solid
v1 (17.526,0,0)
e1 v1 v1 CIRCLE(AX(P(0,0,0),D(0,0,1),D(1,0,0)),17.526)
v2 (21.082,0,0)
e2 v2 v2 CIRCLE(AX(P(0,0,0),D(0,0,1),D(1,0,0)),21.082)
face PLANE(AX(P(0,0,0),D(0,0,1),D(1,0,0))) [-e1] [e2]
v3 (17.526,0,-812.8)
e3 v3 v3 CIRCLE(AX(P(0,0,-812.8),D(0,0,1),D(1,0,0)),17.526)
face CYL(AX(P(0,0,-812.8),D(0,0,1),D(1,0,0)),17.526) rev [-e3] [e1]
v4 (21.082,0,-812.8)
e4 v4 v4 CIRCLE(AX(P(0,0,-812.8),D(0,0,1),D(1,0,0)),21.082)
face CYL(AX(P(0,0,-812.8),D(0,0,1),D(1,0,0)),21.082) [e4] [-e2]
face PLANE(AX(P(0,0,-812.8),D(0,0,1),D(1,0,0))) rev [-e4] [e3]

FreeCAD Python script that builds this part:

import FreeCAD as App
import Part
import Sketcher
from FreeCAD import Vector
Q = App.Units.Quantity

doc = App.newDocument("Part")
body = doc.addObject("PartDesign::Body", "Body")

# Sketch on XY plane
sketch1 = doc.addObject("Sketcher::SketchObject", "Sketch")
body.addObject(sketch1)
sketch1.AttachmentSupport = (doc.XY_Plane, [""])
sketch1.MapMode = "FlatFace"
sketch1.addGeometry([
    Part.Circle(Vector(0, 0, 0), Vector(0, 0, 1), 21.082),
    Part.Circle(Vector(0, 0, 0), Vector(0, 0, 1), 17.526),
], False)
sketch1.addConstraint([
    Sketcher.Constraint("Coincident", 0, 3, -1, 1),
    Sketcher.Constraint("Coincident", 1, 3, -1, 1),
    Sketcher.Constraint("Diameter", 0, Q("1.66 in")),
    Sketcher.Constraint("Diameter", 1, Q("1.38 in")),
])
pad1 = doc.addObject("PartDesign::Pad", "Pad")
body.addObject(pad1)
pad1.Profile = sketch1
pad1.Length = Q("32 in")
pad1.Reversed = True

doc.recompute()
